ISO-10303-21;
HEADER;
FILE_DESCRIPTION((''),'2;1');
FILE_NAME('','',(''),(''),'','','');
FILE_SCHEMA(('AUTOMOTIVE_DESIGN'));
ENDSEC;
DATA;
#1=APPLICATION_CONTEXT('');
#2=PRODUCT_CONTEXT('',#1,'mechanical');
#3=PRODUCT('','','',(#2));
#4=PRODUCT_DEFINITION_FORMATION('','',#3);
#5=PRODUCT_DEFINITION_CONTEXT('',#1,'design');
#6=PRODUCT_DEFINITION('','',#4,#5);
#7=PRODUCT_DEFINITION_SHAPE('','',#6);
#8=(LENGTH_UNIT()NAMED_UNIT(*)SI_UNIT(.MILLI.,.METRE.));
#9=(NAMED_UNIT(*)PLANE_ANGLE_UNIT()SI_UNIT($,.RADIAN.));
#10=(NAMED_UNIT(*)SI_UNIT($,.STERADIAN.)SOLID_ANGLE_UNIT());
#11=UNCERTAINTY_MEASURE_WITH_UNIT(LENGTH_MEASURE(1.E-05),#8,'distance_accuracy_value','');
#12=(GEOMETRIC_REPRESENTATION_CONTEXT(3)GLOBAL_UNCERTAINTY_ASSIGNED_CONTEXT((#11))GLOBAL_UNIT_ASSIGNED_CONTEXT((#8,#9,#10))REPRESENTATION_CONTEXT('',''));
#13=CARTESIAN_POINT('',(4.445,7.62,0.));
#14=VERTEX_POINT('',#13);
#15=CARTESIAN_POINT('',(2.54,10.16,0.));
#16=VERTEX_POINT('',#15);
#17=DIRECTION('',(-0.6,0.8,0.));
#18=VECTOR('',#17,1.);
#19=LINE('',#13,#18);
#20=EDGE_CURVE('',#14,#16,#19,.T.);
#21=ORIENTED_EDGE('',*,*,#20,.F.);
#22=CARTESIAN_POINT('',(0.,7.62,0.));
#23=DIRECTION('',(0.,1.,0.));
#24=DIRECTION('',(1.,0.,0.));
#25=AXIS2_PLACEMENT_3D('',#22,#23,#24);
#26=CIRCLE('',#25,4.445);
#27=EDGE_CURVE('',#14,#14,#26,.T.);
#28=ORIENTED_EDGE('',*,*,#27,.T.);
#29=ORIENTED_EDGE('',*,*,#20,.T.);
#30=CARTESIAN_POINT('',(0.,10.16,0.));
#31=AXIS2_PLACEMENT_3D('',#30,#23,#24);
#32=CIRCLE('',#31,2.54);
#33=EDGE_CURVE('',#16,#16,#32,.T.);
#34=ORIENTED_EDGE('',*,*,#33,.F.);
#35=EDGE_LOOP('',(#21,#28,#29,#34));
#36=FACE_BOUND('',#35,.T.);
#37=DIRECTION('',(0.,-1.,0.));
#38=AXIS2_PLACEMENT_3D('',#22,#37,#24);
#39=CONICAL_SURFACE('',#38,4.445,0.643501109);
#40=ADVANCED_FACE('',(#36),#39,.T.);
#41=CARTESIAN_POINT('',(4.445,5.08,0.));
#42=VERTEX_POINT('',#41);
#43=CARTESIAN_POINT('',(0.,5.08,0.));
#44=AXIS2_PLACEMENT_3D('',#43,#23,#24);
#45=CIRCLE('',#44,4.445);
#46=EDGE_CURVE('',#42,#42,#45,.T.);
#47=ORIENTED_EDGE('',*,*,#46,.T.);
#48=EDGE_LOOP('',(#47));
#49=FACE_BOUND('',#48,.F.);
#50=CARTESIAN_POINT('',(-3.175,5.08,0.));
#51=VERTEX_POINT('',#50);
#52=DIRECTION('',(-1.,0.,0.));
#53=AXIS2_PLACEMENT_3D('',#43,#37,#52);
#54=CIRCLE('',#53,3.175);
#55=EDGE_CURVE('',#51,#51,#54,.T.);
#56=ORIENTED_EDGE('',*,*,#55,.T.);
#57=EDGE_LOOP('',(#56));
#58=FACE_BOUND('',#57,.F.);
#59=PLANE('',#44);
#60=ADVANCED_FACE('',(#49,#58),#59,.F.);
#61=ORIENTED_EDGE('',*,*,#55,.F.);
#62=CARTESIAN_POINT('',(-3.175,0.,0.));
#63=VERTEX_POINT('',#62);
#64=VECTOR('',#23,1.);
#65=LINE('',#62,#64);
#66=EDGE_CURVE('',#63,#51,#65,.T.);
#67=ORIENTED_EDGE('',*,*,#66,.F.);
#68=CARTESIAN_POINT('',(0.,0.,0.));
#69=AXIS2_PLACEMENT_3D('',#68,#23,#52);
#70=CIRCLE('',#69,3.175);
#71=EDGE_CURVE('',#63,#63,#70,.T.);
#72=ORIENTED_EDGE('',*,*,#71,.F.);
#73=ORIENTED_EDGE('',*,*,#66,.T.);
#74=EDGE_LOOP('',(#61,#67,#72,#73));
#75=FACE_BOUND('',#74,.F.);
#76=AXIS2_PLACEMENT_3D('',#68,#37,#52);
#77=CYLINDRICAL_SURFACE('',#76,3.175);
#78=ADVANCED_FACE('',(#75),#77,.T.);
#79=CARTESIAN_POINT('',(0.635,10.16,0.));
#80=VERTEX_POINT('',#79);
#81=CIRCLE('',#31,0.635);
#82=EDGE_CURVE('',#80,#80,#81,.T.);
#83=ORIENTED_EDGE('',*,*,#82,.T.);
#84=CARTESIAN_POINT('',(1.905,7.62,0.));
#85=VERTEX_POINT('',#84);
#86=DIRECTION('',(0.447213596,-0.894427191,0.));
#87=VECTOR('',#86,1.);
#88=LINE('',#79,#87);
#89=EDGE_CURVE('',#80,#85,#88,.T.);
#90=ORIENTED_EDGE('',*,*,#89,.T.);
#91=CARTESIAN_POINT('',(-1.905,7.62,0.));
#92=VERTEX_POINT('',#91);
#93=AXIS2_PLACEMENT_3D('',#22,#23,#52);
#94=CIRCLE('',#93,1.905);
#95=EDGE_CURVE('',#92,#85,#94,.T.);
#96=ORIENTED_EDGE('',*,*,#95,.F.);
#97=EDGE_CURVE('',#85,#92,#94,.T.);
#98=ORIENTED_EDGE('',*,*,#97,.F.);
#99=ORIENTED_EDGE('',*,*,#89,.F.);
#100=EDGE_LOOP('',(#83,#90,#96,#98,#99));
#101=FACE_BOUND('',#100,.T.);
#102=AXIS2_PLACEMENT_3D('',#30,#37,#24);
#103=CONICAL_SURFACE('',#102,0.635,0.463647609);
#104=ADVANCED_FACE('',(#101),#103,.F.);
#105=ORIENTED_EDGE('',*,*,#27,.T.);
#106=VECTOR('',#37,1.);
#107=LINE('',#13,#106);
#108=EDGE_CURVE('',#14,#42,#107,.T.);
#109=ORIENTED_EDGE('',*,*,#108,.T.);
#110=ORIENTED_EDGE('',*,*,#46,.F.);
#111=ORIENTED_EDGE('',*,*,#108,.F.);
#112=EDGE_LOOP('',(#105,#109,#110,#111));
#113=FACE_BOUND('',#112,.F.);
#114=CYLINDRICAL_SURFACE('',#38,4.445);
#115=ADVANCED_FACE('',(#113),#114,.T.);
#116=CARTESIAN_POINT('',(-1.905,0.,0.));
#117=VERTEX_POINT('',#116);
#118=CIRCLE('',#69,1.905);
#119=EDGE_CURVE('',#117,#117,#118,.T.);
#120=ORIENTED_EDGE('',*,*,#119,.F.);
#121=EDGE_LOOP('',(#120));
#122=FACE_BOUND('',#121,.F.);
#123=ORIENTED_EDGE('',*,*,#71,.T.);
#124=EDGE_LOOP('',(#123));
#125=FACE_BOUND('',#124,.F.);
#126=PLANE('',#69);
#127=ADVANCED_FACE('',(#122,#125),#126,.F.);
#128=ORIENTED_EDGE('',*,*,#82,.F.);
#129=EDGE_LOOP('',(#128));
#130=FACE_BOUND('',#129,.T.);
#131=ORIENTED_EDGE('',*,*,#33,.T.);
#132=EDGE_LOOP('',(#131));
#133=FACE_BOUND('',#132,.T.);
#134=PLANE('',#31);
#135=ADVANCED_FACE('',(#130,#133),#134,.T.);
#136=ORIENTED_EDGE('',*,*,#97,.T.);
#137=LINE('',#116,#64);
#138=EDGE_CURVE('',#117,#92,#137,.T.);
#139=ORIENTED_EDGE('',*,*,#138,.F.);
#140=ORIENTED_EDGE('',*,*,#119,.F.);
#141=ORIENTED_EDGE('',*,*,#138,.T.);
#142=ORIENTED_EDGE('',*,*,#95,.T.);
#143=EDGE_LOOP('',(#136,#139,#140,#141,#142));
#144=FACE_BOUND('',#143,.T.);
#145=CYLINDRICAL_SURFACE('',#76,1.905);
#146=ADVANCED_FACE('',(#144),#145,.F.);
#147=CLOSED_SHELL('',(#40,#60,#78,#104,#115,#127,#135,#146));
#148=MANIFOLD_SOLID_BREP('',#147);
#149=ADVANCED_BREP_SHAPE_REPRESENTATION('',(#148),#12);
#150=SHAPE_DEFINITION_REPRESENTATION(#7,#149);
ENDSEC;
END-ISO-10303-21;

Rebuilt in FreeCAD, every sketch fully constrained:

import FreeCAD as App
import Part
import Sketcher
from FreeCAD import Vector
Q = App.Units.Quantity


def add_polygon(sketch, points):
    """Adds a closed chain of lines whose ends are joined by coincident constraints."""
    first, n = sketch.GeometryCount, len(points)
    for a, b in zip(points, points[1:] + points[:1]):
        sketch.addGeometry(Part.LineSegment(App.Vector(*a, 0), App.Vector(*b, 0)), False)
    for i in range(n):
        sketch.addConstraint(Sketcher.Constraint("Coincident", first + i, 2, first + (i + 1) % n, 1))

doc = App.newDocument("Part")
body = doc.addObject("PartDesign::Body", "Body")

sketch1 = doc.addObject("Sketcher::SketchObject", "Sketch")
body.addObject(sketch1)
sketch1.AttachmentSupport = (doc.XZ_Plane, [""])
sketch1.MapMode = "FlatFace"
sketch1.addGeometry(Part.Circle(Vector(0, 0, 0), Vector(0, 0, 1), 3.2), False)
sketch1.addGeometry(Part.Circle(Vector(0, 0, 0), Vector(0, 0, 1), 1.9), False)
sketch1.addConstraint(Sketcher.Constraint("Coincident", 0, 3, -1, 1))
sketch1.addConstraint(Sketcher.Constraint("Coincident", 1, 3, -1, 1))
sketch1.addConstraint(Sketcher.Constraint("Diameter", 0, Q("0.25 in")))
sketch1.addConstraint(Sketcher.Constraint("Diameter", 1, Q("0.15 in")))
pad1 = doc.addObject("PartDesign::Pad", "Pad")
body.addObject(pad1)
pad1.Profile = sketch1
pad1.Length = Q("0.3 in")
pad1.Reversed = True

sketch2 = doc.addObject("Sketcher::SketchObject", "Sketch001")
body.addObject(sketch2)
sketch2.AttachmentSupport = (doc.XY_Plane, [""])
sketch2.MapMode = "FlatFace"
add_polygon(sketch2, [(1.9, 7.6), (3.2, 7.6), (3.2, 5.1), (4.4, 5.1), (4.4, 7.6), (2.5, 10.2), (0.6, 10.2)])
sketch2.addConstraint(Sketcher.Constraint("Horizontal", 0))
sketch2.addConstraint(Sketcher.Constraint("Vertical", 1))
sketch2.addConstraint(Sketcher.Constraint("Horizontal", 2))
sketch2.addConstraint(Sketcher.Constraint("Vertical", 3))
sketch2.addConstraint(Sketcher.Constraint("Horizontal", 5))
sketch2.addConstraint(Sketcher.Constraint("Horizontal", 0, 2, 3, 2))
sketch2.addConstraint(Sketcher.Constraint("Equal", 0, 2))
sketch2.addConstraint(Sketcher.Constraint("DistanceY", 1, 2, 1, 1, Q("0.1 in")))
sketch2.addConstraint(Sketcher.Constraint("DistanceX", 0, 1, 0, 2, Q("0.05 in")))
sketch2.addConstraint(Sketcher.Constraint("DistanceX", -1, 1, 4, 2, Q("0.1 in")))
sketch2.addConstraint(Sketcher.Constraint("DistanceY", 0, 2, 4, 2, Q("0.1 in")))
sketch2.addConstraint(Sketcher.Constraint("DistanceX", 5, 2, 0, 2, Q("0.1 in")))
sketch2.addConstraint(Sketcher.Constraint("DistanceX", -1, 1, 5, 2, Q("0.025 in")))
sketch2.addConstraint(Sketcher.Constraint("DistanceY", -1, 1, 0, 2, Q("0.3 in")))
revolution = doc.addObject("PartDesign::Revolution", "Revolution")
body.addObject(revolution)
revolution.Profile = sketch2
revolution.ReferenceAxis = (sketch2, ["V_Axis"])
revolution.Angle = 360

doc.recompute()
